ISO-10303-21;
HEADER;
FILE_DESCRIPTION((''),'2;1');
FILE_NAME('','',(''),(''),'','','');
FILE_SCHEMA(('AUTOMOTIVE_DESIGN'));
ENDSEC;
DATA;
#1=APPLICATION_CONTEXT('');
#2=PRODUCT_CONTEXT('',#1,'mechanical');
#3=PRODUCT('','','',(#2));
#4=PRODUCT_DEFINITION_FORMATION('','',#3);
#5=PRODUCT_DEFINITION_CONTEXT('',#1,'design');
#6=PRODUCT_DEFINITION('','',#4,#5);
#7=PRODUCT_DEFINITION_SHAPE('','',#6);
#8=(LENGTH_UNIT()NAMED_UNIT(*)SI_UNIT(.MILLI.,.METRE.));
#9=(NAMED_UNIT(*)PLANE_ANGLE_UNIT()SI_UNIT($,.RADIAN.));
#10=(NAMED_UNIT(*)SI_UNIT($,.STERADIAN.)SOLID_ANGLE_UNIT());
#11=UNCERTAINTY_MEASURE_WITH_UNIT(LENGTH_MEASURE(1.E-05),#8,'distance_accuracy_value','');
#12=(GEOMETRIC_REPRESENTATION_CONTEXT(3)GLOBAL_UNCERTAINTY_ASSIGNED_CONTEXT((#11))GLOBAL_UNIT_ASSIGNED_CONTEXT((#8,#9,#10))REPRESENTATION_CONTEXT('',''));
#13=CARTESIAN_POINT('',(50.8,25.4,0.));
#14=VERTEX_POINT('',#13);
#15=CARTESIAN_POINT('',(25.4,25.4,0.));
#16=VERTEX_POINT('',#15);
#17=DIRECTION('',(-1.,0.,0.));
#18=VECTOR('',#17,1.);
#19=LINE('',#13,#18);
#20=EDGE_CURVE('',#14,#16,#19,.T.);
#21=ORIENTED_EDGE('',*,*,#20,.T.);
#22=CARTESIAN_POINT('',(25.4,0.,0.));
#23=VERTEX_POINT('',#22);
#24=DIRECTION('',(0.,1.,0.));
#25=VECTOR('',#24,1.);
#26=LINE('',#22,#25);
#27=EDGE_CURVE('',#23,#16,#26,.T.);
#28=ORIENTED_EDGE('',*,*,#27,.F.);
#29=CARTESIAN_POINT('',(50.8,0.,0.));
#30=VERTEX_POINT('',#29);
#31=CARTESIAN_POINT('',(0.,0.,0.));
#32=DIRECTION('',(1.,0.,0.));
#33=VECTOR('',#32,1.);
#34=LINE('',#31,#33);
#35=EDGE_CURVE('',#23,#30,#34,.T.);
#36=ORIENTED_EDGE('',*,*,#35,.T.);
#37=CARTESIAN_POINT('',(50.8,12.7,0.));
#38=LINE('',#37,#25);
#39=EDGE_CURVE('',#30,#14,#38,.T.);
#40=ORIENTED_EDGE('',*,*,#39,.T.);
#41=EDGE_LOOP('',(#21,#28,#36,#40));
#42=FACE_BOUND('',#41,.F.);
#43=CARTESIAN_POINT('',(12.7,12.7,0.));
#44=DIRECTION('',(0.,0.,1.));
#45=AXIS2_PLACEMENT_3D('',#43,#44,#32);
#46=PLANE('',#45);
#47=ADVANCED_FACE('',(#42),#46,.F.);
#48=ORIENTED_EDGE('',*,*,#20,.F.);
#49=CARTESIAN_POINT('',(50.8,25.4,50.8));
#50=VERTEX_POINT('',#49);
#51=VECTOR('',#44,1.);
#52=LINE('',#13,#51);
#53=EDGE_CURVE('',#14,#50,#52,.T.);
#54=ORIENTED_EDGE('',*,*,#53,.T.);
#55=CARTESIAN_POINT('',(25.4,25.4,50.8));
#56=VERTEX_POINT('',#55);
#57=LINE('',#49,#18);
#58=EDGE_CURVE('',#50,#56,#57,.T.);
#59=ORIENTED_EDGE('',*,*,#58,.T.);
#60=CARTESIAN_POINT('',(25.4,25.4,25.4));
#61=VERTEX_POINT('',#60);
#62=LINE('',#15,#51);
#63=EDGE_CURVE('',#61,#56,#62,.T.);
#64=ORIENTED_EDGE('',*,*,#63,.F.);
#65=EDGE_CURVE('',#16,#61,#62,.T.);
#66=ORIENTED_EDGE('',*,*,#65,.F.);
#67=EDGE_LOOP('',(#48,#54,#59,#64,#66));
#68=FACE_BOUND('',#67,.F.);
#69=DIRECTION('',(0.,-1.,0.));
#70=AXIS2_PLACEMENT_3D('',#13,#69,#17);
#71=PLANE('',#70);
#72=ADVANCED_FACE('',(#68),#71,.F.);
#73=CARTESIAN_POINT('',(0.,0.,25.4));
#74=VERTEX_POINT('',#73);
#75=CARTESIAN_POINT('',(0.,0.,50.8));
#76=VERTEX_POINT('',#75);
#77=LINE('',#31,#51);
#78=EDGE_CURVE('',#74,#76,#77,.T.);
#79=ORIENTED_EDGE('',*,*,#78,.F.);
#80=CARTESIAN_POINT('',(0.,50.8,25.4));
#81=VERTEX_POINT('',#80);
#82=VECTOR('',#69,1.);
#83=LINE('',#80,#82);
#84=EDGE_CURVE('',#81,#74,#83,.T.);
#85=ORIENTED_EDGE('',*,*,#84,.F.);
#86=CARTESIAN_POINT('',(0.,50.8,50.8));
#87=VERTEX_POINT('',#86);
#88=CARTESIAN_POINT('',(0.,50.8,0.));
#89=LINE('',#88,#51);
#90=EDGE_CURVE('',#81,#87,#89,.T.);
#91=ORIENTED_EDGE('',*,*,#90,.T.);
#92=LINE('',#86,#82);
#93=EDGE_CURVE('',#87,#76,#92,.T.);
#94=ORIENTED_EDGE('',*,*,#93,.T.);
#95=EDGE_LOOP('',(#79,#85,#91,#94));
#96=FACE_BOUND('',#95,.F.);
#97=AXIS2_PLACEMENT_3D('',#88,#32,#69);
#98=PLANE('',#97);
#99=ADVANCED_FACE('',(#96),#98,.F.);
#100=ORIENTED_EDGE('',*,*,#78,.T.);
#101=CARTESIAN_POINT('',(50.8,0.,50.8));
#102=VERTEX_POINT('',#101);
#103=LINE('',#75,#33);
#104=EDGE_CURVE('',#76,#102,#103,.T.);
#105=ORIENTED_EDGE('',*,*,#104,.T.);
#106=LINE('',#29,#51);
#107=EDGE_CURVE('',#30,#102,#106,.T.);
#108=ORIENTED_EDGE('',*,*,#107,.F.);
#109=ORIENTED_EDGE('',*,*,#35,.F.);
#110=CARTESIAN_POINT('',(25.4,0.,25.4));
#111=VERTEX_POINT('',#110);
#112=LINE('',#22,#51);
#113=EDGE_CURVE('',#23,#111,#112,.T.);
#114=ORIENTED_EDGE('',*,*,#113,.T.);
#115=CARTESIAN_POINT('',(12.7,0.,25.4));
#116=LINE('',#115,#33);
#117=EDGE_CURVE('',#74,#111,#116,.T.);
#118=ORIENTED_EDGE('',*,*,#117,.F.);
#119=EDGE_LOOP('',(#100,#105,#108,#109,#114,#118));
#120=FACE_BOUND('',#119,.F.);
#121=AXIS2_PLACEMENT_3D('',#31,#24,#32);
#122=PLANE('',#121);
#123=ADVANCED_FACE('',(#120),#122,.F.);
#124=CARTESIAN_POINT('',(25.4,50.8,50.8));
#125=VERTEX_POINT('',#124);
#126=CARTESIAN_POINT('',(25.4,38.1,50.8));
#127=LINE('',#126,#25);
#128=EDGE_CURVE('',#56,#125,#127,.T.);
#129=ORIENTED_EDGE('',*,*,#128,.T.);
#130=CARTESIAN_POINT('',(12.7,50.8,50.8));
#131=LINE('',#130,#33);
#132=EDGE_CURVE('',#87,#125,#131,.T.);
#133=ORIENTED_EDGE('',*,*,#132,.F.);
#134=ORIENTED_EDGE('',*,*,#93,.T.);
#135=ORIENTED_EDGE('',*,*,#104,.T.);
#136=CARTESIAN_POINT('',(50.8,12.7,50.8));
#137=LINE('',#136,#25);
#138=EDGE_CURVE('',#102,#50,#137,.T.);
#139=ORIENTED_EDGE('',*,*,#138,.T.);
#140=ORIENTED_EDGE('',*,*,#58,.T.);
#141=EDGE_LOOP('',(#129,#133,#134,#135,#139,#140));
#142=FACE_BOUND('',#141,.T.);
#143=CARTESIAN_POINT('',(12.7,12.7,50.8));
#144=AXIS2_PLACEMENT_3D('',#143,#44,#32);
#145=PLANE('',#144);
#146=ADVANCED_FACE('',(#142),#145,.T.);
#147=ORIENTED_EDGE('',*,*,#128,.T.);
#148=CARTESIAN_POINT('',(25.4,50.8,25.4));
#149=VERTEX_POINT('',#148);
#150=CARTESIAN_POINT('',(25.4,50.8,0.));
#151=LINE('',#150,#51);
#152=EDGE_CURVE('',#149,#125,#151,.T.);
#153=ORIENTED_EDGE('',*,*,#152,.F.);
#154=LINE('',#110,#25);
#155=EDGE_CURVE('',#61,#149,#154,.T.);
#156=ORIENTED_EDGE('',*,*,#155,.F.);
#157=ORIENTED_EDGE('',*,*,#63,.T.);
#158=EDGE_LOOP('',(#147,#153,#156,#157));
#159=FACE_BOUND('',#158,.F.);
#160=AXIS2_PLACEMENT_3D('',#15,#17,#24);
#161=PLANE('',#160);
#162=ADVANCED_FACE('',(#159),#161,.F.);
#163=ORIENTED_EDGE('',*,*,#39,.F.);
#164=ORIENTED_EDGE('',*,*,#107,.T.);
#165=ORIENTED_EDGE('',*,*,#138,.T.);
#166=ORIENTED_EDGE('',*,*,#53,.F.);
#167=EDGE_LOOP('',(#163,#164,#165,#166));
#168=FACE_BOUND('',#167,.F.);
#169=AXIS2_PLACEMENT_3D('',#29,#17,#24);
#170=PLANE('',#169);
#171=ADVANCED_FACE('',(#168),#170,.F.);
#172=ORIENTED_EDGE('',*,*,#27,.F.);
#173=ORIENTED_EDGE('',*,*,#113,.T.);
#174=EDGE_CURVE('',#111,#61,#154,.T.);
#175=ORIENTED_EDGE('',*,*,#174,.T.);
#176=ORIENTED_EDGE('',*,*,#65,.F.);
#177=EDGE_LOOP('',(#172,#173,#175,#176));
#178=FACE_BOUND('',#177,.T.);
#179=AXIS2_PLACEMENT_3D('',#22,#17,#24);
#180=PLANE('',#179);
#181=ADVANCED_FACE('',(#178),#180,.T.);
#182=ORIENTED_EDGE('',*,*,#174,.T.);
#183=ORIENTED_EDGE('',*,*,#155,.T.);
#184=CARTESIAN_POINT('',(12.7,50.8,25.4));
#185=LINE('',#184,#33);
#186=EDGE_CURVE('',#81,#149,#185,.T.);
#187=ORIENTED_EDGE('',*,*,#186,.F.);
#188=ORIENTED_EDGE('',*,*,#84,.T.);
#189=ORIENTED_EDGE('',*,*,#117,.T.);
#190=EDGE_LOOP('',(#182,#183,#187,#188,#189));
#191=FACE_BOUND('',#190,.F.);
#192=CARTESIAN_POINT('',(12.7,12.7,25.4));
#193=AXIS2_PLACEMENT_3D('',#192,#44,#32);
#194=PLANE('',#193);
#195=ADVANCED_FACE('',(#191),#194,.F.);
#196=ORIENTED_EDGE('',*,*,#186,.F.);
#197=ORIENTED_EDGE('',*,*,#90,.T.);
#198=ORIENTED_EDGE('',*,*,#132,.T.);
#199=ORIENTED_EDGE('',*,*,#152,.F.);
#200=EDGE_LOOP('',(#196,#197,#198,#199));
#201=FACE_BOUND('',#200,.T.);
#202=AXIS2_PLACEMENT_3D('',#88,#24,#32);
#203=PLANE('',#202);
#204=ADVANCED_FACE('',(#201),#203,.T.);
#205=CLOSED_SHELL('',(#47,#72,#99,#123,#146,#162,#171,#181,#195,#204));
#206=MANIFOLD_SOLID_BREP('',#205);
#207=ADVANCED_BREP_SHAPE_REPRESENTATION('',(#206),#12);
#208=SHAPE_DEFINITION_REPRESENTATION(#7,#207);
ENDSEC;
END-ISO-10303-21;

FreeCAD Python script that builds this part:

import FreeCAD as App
import Part
import Sketcher
from FreeCAD import Vector
Q = App.Units.Quantity


def add_polygon(sketch, points):
    """Adds a closed chain of lines whose ends are joined by coincident constraints."""
    first, n = sketch.GeometryCount, len(points)
    for a, b in zip(points, points[1:] + points[:1]):
        sketch.addGeometry(Part.LineSegment(App.Vector(*a, 0), App.Vector(*b, 0)), False)
    for i in range(n):
        sketch.addConstraint(Sketcher.Constraint("Coincident", first + i, 2, first + (i + 1) % n, 1))

doc = App.newDocument("Part")
body = doc.addObject("PartDesign::Body", "Body")

# Sketch on XY plane
sketch1 = body.newObject("Sketcher::SketchObject", "Sketch")
sketch1.AttachmentSupport = (doc.getObject("XY_Plane"), [""])
sketch1.MapMode = "FlatFace"
add_polygon(sketch1, [(0, 0), (50.8, 0), (50.8, 25.4), (25.4, 25.4), (25.4, 50.8), (0, 50.8)])  # lines 0-5
sketch1.addConstraint([
    Sketcher.Constraint("Horizontal", 0),
    Sketcher.Constraint("Vertical", 1),
    Sketcher.Constraint("Horizontal", 2),
    Sketcher.Constraint("Vertical", 3),
    Sketcher.Constraint("Horizontal", 4),
    Sketcher.Constraint("Vertical", 5),
    Sketcher.Constraint("Coincident", 5, 2, -1, 1),
    Sketcher.Constraint("Equal", 2, 4),
    Sketcher.Constraint("Equal", 4, 1),
    Sketcher.Constraint("Equal", 1, 3),
    Sketcher.Constraint("DistanceX", 0, 1, 0, 2, Q("2 in")),
])
pad1 = body.newObject("PartDesign::Pad", "Pad")
pad1.Profile = sketch1
pad1.Length = Q("2 in")

# Sketch on XY plane
sketch2 = body.newObject("Sketcher::SketchObject", "Sketch001")
sketch2.AttachmentSupport = (doc.getObject("XY_Plane"), [""])
sketch2.MapMode = "FlatFace"
add_polygon(sketch2, [(0, 0), (25.4, 0), (25.4, 50.8), (0, 50.8)])  # lines 0-3
sketch2.addConstraint([
    Sketcher.Constraint("Horizontal", 0),
    Sketcher.Constraint("Vertical", 1),
    Sketcher.Constraint("Horizontal", 2),
    Sketcher.Constraint("Vertical", 3),
    Sketcher.Constraint("Coincident", 3, 2, -1, 1),
    Sketcher.Constraint("DistanceX", 0, 1, 0, 2, Q("1 in")),
    Sketcher.Constraint("DistanceY", 1, 1, 1, 2, Q("2 in")),
])
pocket1 = body.newObject("PartDesign::Pocket", "Pocket")
pocket1.Profile = sketch2
pocket1.Length = Q("1 in")
pocket1.Reversed = True

doc.recompute()
